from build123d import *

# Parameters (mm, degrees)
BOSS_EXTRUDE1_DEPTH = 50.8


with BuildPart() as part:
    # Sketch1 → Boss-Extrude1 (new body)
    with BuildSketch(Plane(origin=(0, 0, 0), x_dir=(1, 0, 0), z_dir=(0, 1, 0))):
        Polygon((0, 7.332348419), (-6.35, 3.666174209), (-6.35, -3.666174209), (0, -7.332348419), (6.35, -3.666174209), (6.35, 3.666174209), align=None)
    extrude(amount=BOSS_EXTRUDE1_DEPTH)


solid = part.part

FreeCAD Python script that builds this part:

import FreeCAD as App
import Part
import Sketcher
from FreeCAD import Vector
Q = App.Units.Quantity


def add_polygon(sketch, points):
    """Adds a closed chain of lines whose ends are joined by coincident constraints."""
    first, n = sketch.GeometryCount, len(points)
    for a, b in zip(points, points[1:] + points[:1]):
        sketch.addGeometry(Part.LineSegment(App.Vector(*a, 0), App.Vector(*b, 0)), False)
    for i in range(n):
        sketch.addConstraint(Sketcher.Constraint("Coincident", first + i, 2, first + (i + 1) % n, 1))

doc = App.newDocument("Part")
body = doc.addObject("PartDesign::Body", "Body")

# Sketch on XZ plane
sketch1 = body.newObject("Sketcher::SketchObject", "Sketch")
sketch1.AttachmentSupport = (doc.getObject("XZ_Plane"), [""])
sketch1.MapMode = "FlatFace"
add_polygon(sketch1, [(0, -7.332348), (-6.35, -3.666174), (-6.35, 3.666174), (0, 7.332348), (6.35, 3.666174), (6.35, -3.666174)])  # lines 0-5
sketch1.addConstraint([
    Sketcher.Constraint("Vertical", 1),
    Sketcher.Constraint("Vertical", 4),
    Sketcher.Constraint("Symmetric", 0, 2, 3, 2, -1, 1),
    Sketcher.Constraint("Symmetric", 2, 2, 5, 2, -1, 1),
    Sketcher.Constraint("PointOnObject", 2, 2, -2),
    Sketcher.Constraint("Parallel", 2, 5),
    Sketcher.Constraint("Horizontal", 1, 2, 3, 2),
    Sketcher.Constraint("Angle", 0, Q("150 deg")),
    Sketcher.Constraint("DistanceX", 1, 2, 3, 2, Q("0.5 in")),
    Sketcher.Constraint("DistanceY", 1, 1, 1, 2, 7.332348),
])
pad1 = body.newObject("PartDesign::Pad", "Pad")
pad1.Profile = sketch1
pad1.Length = Q("2 in")
pad1.Reversed = True

doc.recompute()
